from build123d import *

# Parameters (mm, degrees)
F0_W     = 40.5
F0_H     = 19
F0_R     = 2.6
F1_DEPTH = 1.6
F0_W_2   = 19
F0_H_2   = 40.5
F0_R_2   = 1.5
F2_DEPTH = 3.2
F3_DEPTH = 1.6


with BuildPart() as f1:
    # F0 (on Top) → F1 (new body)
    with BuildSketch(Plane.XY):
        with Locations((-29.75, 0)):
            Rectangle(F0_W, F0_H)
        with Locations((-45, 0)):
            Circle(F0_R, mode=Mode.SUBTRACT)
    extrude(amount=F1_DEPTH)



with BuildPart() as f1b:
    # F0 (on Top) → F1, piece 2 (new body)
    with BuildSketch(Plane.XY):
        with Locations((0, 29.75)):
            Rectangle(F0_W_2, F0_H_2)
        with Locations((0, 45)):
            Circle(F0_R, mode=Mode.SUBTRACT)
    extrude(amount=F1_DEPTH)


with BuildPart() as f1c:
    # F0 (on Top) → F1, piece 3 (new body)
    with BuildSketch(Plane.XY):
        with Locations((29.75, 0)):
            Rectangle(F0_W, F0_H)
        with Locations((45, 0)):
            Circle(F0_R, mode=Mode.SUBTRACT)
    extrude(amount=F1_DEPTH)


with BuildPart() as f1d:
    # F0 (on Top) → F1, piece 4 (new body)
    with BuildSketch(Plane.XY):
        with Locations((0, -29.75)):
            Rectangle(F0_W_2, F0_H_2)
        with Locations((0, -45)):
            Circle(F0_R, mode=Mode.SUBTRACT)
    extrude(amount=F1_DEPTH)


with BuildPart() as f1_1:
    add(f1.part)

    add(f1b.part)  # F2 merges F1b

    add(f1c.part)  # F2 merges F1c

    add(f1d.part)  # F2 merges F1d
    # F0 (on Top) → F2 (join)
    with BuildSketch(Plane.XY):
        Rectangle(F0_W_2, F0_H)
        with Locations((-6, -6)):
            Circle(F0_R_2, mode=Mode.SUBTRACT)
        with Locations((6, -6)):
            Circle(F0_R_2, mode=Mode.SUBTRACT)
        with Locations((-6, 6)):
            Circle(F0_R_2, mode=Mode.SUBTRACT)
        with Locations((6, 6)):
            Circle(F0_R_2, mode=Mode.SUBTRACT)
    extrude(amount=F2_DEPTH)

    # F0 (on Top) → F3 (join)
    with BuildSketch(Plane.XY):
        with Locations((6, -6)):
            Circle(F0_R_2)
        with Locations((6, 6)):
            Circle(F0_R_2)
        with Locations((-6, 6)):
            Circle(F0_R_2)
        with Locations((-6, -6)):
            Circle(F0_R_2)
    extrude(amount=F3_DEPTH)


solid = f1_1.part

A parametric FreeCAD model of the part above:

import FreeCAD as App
import Part
import Sketcher
from FreeCAD import Vector

doc = App.newDocument("Part")
body = doc.addObject("PartDesign::Body", "Body")

sketch1 = doc.addObject("Sketcher::SketchObject", "Sketch")
body.addObject(sketch1)
sketch1.AttachmentSupport = (doc.XY_Plane, [""])
sketch1.MapMode = "FlatFace"
sketch1.addGeometry(Part.LineSegment(Vector(-50, 9.5, 0), Vector(-50, -9.5, 0)), False)
sketch1.addGeometry(Part.LineSegment(Vector(-50, -9.5, 0), Vector(-9.5, -9.5, 0)), False)
sketch1.addGeometry(Part.LineSegment(Vector(-9.5, -9.5, 0), Vector(-9.5, 9.5, 0)), False)
sketch1.addGeometry(Part.LineSegment(Vector(-9.5, 9.5, 0), Vector(-50, 9.5, 0)), False)
sketch1.addGeometry(Part.Circle(Vector(-45, 0, 0), Vector(0, 0, 1), 2.6), False)
sketch1.addConstraint(Sketcher.Constraint("Coincident", 0, 2, 1, 1))
sketch1.addConstraint(Sketcher.Constraint("Coincident", 1, 2, 2, 1))
sketch1.addConstraint(Sketcher.Constraint("Coincident", 2, 2, 3, 1))
sketch1.addConstraint(Sketcher.Constraint("Coincident", 3, 2, 0, 1))
sketch1.addConstraint(Sketcher.Constraint("Vertical", 0))
sketch1.addConstraint(Sketcher.Constraint("Horizontal", 1))
sketch1.addConstraint(Sketcher.Constraint("Vertical", 2))
sketch1.addConstraint(Sketcher.Constraint("Horizontal", 3))
sketch1.addConstraint(Sketcher.Constraint("PointOnObject", 4, 3, -1))
sketch1.addConstraint(Sketcher.Constraint("Diameter", 4, 5.2))
sketch1.addConstraint(Sketcher.Constraint("DistanceY", 0, 2, 0, 1, 19.0))
sketch1.addConstraint(Sketcher.Constraint("DistanceX", 1, 1, 1, 2, 40.5))
sketch1.addConstraint(Sketcher.Constraint("DistanceX", 4, 3, -1, 1, 45.0))
sketch1.addConstraint(Sketcher.Constraint("DistanceX", 0, 2, -1, 1, 50.0))
sketch1.addConstraint(Sketcher.Constraint("DistanceY", 0, 2, -1, 1, 9.5))
pad1 = doc.addObject("PartDesign::Pad", "Pad")
body.addObject(pad1)
pad1.Profile = sketch1
pad1.Length = 1.6
body2 = doc.addObject("PartDesign::Body", "Body001")

sketch2 = doc.addObject("Sketcher::SketchObject", "Sketch001")
body2.addObject(sketch2)
sketch2.AttachmentSupport = (doc.getObject("XY_Plane001"), [""])
sketch2.MapMode = "FlatFace"
sketch2.addGeometry(Part.LineSegment(Vector(-9.5, 50, 0), Vector(-9.5, 9.5, 0)), False)
sketch2.addGeometry(Part.LineSegment(Vector(-9.5, 9.5, 0), Vector(9.5, 9.5, 0)), False)
sketch2.addGeometry(Part.LineSegment(Vector(9.5, 9.5, 0), Vector(9.5, 50, 0)), False)
sketch2.addGeometry(Part.LineSegment(Vector(9.5, 50, 0), Vector(-9.5, 50, 0)), False)
sketch2.addGeometry(Part.Circle(Vector(0, 45, 0), Vector(0, 0, 1), 2.6), False)
sketch2.addConstraint(Sketcher.Constraint("Coincident", 0, 2, 1, 1))
sketch2.addConstraint(Sketcher.Constraint("Coincident", 1, 2, 2, 1))
sketch2.addConstraint(Sketcher.Constraint("Coincident", 2, 2, 3, 1))
sketch2.addConstraint(Sketcher.Constraint("Coincident", 3, 2, 0, 1))
sketch2.addConstraint(Sketcher.Constraint("Vertical", 0))
sketch2.addConstraint(Sketcher.Constraint("Horizontal", 1))
sketch2.addConstraint(Sketcher.Constraint("Vertical", 2))
sketch2.addConstraint(Sketcher.Constraint("Horizontal", 3))
sketch2.addConstraint(Sketcher.Constraint("PointOnObject", 4, 3, -2))
sketch2.addConstraint(Sketcher.Constraint("Diameter", 4, 5.2))
sketch2.addConstraint(Sketcher.Constraint("DistanceX", 1, 1, 1, 2, 19.0))
sketch2.addConstraint(Sketcher.Constraint("DistanceY", 0, 2, 0, 1, 40.5))
sketch2.addConstraint(Sketcher.Constraint("DistanceY", -1, 1, 4, 3, 45.0))
sketch2.addConstraint(Sketcher.Constraint("DistanceY", -1, 1, 2, 2, 50.0))
sketch2.addConstraint(Sketcher.Constraint("DistanceX", 0, 2, -1, 1, 9.5))
pad2 = doc.addObject("PartDesign::Pad", "Pad001")
body2.addObject(pad2)
pad2.Profile = sketch2
pad2.Length = 1.6
body3 = doc.addObject("PartDesign::Body", "Body002")

sketch3 = doc.addObject("Sketcher::SketchObject", "Sketch002")
body3.addObject(sketch3)
sketch3.AttachmentSupport = (doc.getObject("XY_Plane002"), [""])
sketch3.MapMode = "FlatFace"
sketch3.addGeometry(Part.LineSegment(Vector(9.5, 9.5, 0), Vector(9.5, -9.5, 0)), False)
sketch3.addGeometry(Part.LineSegment(Vector(9.5, -9.5, 0), Vector(50, -9.5, 0)), False)
sketch3.addGeometry(Part.LineSegment(Vector(50, -9.5, 0), Vector(50, 9.5, 0)), False)
sketch3.addGeometry(Part.LineSegment(Vector(50, 9.5, 0), Vector(9.5, 9.5, 0)), False)
sketch3.addGeometry(Part.Circle(Vector(45, 0, 0), Vector(0, 0, 1), 2.6), False)
sketch3.addConstraint(Sketcher.Constraint("Coincident", 0, 2, 1, 1))
sketch3.addConstraint(Sketcher.Constraint("Coincident", 1, 2, 2, 1))
sketch3.addConstraint(Sketcher.Constraint("Coincident", 2, 2, 3, 1))
sketch3.addConstraint(Sketcher.Constraint("Coincident", 3, 2, 0, 1))
sketch3.addConstraint(Sketcher.Constraint("Vertical", 0))
sketch3.addConstraint(Sketcher.Constraint("Horizontal", 1))
sketch3.addConstraint(Sketcher.Constraint("Vertical", 2))
sketch3.addConstraint(Sketcher.Constraint("Horizontal", 3))
sketch3.addConstraint(Sketcher.Constraint("PointOnObject", 4, 3, -1))
sketch3.addConstraint(Sketcher.Constraint("Diameter", 4, 5.2))
sketch3.addConstraint(Sketcher.Constraint("DistanceY", 0, 2, 0, 1, 19.0))
sketch3.addConstraint(Sketcher.Constraint("DistanceX", 1, 1, 1, 2, 40.5))
sketch3.addConstraint(Sketcher.Constraint("DistanceX", -1, 1, 4, 3, 45.0))
sketch3.addConstraint(Sketcher.Constraint("DistanceX", -1, 1, 1, 2, 50.0))
sketch3.addConstraint(Sketcher.Constraint("DistanceY", 0, 2, -1, 1, 9.5))
pad3 = doc.addObject("PartDesign::Pad", "Pad002")
body3.addObject(pad3)
pad3.Profile = sketch3
pad3.Length = 1.6
body4 = doc.addObject("PartDesign::Body", "Body003")

sketch4 = doc.addObject("Sketcher::SketchObject", "Sketch003")
body4.addObject(sketch4)
sketch4.AttachmentSupport = (doc.getObject("XY_Plane003"), [""])
sketch4.MapMode = "FlatFace"
sketch4.addGeometry(Part.LineSegment(Vector(-9.5, -9.5, 0), Vector(-9.5, -50, 0)), False)
sketch4.addGeometry(Part.LineSegment(Vector(-9.5, -50, 0), Vector(9.5, -50, 0)), False)
sketch4.addGeometry(Part.LineSegment(Vector(9.5, -50, 0), Vector(9.5, -9.5, 0)), False)
sketch4.addGeometry(Part.LineSegment(Vector(9.5, -9.5, 0), Vector(-9.5, -9.5, 0)), False)
sketch4.addGeometry(Part.Circle(Vector(0, -45, 0), Vector(0, 0, 1), 2.6), False)
sketch4.addConstraint(Sketcher.Constraint("Coincident", 0, 2, 1, 1))
sketch4.addConstraint(Sketcher.Constraint("Coincident", 1, 2, 2, 1))
sketch4.addConstraint(Sketcher.Constraint("Coincident", 2, 2, 3, 1))
sketch4.addConstraint(Sketcher.Constraint("Coincident", 3, 2, 0, 1))
sketch4.addConstraint(Sketcher.Constraint("Vertical", 0))
sketch4.addConstraint(Sketcher.Constraint("Horizontal", 1))
sketch4.addConstraint(Sketcher.Constraint("Vertical", 2))
sketch4.addConstraint(Sketcher.Constraint("Horizontal", 3))
sketch4.addConstraint(Sketcher.Constraint("PointOnObject", 4, 3, -2))
sketch4.addConstraint(Sketcher.Constraint("Diameter", 4, 5.2))
sketch4.addConstraint(Sketcher.Constraint("DistanceX", 1, 1, 1, 2, 19.0))
sketch4.addConstraint(Sketcher.Constraint("DistanceY", 0, 2, 0, 1, 40.5))
sketch4.addConstraint(Sketcher.Constraint("DistanceY", 4, 3, -1, 1, 45.0))
sketch4.addConstraint(Sketcher.Constraint("DistanceY", 0, 2, -1, 1, 50.0))
sketch4.addConstraint(Sketcher.Constraint("DistanceX", 0, 2, -1, 1, 9.5))
pad4 = doc.addObject("PartDesign::Pad", "Pad003")
body4.addObject(pad4)
pad4.Profile = sketch4
pad4.Length = 1.6
body.AllowCompound = True
doc.recompute()

boolean = doc.addObject("PartDesign::Boolean", "Boolean")
body.addObject(boolean)
boolean.Type = "Fuse"
boolean.addObjects([body2])
doc.recompute()

boolean2 = doc.addObject("PartDesign::Boolean", "Boolean001")
body.addObject(boolean2)
boolean2.Type = "Fuse"
boolean2.addObjects([body3])
doc.recompute()

boolean3 = doc.addObject("PartDesign::Boolean", "Boolean002")
body.addObject(boolean3)
boolean3.Type = "Fuse"
boolean3.addObjects([body4])

sketch5 = doc.addObject("Sketcher::SketchObject", "Sketch004")
body.addObject(sketch5)
sketch5.AttachmentSupport = (doc.XY_Plane, [""])
sketch5.MapMode = "FlatFace"
sketch5.addGeometry(Part.LineSegment(Vector(-9.5, 9.5, 0), Vector(-9.5, -9.5, 0)), False)
sketch5.addGeometry(Part.LineSegment(Vector(-9.5, -9.5, 0), Vector(9.5, -9.5, 0)), False)
sketch5.addGeometry(Part.LineSegment(Vector(9.5, -9.5, 0), Vector(9.5, 9.5, 0)), False)
sketch5.addGeometry(Part.LineSegment(Vector(9.5, 9.5, 0), Vector(-9.5, 9.5, 0)), False)
sketch5.addGeometry(Part.Circle(Vector(-6, -6, 0), Vector(0, 0, 1), 1.5), False)
sketch5.addGeometry(Part.Circle(Vector(6, -6, 0), Vector(0, 0, 1), 1.5), False)
sketch5.addGeometry(Part.Circle(Vector(-6, 6, 0), Vector(0, 0, 1), 1.5), False)
sketch5.addGeometry(Part.Circle(Vector(6, 6, 0), Vector(0, 0, 1), 1.5), False)
sketch5.addConstraint(Sketcher.Constraint("Coincident", 0, 2, 1, 1))
sketch5.addConstraint(Sketcher.Constraint("Coincident", 1, 2, 2, 1))
sketch5.addConstraint(Sketcher.Constraint("Coincident", 2, 2, 3, 1))
sketch5.addConstraint(Sketcher.Constraint("Coincident", 3, 2, 0, 1))
sketch5.addConstraint(Sketcher.Constraint("Vertical", 0))
sketch5.addConstraint(Sketcher.Constraint("Horizontal", 1))
sketch5.addConstraint(Sketcher.Constraint("Vertical", 2))
sketch5.addConstraint(Sketcher.Constraint("Horizontal", 3))
sketch5.addConstraint(Sketcher.Constraint("Equal", 4, 5))
sketch5.addConstraint(Sketcher.Constraint("Equal", 5, 6))
sketch5.addConstraint(Sketcher.Constraint("Equal", 6, 7))
sketch5.addConstraint(Sketcher.Constraint("Symmetric", 5, 3, 6, 3, -1, 1))
sketch5.addConstraint(Sketcher.Constraint("Symmetric", 4, 3, 7, 3, -1, 1))
sketch5.addConstraint(Sketcher.Constraint("Symmetric", 0, 2, 2, 2, -1, 1))
sketch5.addConstraint(Sketcher.Constraint("Symmetric", 4, 3, 5, 3, -2))
sketch5.addConstraint(Sketcher.Constraint("Equal", 3, 0))
sketch5.addConstraint(Sketcher.Constraint("Diameter", 4, 3.0))
sketch5.addConstraint(Sketcher.Constraint("DistanceX", 1, 1, 1, 2, 19.0))
sketch5.addConstraint(Sketcher.Constraint("DistanceX", 4, 3, -1, 1, 6.0))
sketch5.addConstraint(Sketcher.Constraint("DistanceY", 4, 3, -1, 1, 6.0))
pad5 = doc.addObject("PartDesign::Pad", "Pad004")
body.addObject(pad5)
pad5.Profile = sketch5
pad5.Length = 3.2

sketch6 = doc.addObject("Sketcher::SketchObject", "Sketch005")
body.addObject(sketch6)
sketch6.AttachmentSupport = (doc.XY_Plane, [""])
sketch6.MapMode = "FlatFace"
sketch6.addGeometry(Part.Circle(Vector(6, -6, 0), Vector(0, 0, 1), 1.5), False)
sketch6.addGeometry(Part.Circle(Vector(6, 6, 0), Vector(0, 0, 1), 1.5), False)
sketch6.addGeometry(Part.Circle(Vector(-6, 6, 0), Vector(0, 0, 1), 1.5), False)
sketch6.addGeometry(Part.Circle(Vector(-6, -6, 0), Vector(0, 0, 1), 1.5), False)
sketch6.addConstraint(Sketcher.Constraint("Equal", 0, 1))
sketch6.addConstraint(Sketcher.Constraint("Equal", 1, 2))
sketch6.addConstraint(Sketcher.Constraint("Equal", 2, 3))
sketch6.addConstraint(Sketcher.Constraint("Symmetric", 0, 3, 2, 3, -1, 1))
sketch6.addConstraint(Sketcher.Constraint("Symmetric", 1, 3, 3, 3, -1, 1))
sketch6.addConstraint(Sketcher.Constraint("Symmetric", 1, 3, 2, 3, -2))
sketch6.addConstraint(Sketcher.Constraint("Diameter", 0, 3.0))
sketch6.addConstraint(Sketcher.Constraint("DistanceX", -1, 1, 0, 3, 6.0))
sketch6.addConstraint(Sketcher.Constraint("DistanceY", 0, 3, -1, 1, 6.0))
pad6 = doc.addObject("PartDesign::Pad", "Pad005")
body.addObject(pad6)
pad6.Profile = sketch6
pad6.Length = 1.6

doc.recompute()
